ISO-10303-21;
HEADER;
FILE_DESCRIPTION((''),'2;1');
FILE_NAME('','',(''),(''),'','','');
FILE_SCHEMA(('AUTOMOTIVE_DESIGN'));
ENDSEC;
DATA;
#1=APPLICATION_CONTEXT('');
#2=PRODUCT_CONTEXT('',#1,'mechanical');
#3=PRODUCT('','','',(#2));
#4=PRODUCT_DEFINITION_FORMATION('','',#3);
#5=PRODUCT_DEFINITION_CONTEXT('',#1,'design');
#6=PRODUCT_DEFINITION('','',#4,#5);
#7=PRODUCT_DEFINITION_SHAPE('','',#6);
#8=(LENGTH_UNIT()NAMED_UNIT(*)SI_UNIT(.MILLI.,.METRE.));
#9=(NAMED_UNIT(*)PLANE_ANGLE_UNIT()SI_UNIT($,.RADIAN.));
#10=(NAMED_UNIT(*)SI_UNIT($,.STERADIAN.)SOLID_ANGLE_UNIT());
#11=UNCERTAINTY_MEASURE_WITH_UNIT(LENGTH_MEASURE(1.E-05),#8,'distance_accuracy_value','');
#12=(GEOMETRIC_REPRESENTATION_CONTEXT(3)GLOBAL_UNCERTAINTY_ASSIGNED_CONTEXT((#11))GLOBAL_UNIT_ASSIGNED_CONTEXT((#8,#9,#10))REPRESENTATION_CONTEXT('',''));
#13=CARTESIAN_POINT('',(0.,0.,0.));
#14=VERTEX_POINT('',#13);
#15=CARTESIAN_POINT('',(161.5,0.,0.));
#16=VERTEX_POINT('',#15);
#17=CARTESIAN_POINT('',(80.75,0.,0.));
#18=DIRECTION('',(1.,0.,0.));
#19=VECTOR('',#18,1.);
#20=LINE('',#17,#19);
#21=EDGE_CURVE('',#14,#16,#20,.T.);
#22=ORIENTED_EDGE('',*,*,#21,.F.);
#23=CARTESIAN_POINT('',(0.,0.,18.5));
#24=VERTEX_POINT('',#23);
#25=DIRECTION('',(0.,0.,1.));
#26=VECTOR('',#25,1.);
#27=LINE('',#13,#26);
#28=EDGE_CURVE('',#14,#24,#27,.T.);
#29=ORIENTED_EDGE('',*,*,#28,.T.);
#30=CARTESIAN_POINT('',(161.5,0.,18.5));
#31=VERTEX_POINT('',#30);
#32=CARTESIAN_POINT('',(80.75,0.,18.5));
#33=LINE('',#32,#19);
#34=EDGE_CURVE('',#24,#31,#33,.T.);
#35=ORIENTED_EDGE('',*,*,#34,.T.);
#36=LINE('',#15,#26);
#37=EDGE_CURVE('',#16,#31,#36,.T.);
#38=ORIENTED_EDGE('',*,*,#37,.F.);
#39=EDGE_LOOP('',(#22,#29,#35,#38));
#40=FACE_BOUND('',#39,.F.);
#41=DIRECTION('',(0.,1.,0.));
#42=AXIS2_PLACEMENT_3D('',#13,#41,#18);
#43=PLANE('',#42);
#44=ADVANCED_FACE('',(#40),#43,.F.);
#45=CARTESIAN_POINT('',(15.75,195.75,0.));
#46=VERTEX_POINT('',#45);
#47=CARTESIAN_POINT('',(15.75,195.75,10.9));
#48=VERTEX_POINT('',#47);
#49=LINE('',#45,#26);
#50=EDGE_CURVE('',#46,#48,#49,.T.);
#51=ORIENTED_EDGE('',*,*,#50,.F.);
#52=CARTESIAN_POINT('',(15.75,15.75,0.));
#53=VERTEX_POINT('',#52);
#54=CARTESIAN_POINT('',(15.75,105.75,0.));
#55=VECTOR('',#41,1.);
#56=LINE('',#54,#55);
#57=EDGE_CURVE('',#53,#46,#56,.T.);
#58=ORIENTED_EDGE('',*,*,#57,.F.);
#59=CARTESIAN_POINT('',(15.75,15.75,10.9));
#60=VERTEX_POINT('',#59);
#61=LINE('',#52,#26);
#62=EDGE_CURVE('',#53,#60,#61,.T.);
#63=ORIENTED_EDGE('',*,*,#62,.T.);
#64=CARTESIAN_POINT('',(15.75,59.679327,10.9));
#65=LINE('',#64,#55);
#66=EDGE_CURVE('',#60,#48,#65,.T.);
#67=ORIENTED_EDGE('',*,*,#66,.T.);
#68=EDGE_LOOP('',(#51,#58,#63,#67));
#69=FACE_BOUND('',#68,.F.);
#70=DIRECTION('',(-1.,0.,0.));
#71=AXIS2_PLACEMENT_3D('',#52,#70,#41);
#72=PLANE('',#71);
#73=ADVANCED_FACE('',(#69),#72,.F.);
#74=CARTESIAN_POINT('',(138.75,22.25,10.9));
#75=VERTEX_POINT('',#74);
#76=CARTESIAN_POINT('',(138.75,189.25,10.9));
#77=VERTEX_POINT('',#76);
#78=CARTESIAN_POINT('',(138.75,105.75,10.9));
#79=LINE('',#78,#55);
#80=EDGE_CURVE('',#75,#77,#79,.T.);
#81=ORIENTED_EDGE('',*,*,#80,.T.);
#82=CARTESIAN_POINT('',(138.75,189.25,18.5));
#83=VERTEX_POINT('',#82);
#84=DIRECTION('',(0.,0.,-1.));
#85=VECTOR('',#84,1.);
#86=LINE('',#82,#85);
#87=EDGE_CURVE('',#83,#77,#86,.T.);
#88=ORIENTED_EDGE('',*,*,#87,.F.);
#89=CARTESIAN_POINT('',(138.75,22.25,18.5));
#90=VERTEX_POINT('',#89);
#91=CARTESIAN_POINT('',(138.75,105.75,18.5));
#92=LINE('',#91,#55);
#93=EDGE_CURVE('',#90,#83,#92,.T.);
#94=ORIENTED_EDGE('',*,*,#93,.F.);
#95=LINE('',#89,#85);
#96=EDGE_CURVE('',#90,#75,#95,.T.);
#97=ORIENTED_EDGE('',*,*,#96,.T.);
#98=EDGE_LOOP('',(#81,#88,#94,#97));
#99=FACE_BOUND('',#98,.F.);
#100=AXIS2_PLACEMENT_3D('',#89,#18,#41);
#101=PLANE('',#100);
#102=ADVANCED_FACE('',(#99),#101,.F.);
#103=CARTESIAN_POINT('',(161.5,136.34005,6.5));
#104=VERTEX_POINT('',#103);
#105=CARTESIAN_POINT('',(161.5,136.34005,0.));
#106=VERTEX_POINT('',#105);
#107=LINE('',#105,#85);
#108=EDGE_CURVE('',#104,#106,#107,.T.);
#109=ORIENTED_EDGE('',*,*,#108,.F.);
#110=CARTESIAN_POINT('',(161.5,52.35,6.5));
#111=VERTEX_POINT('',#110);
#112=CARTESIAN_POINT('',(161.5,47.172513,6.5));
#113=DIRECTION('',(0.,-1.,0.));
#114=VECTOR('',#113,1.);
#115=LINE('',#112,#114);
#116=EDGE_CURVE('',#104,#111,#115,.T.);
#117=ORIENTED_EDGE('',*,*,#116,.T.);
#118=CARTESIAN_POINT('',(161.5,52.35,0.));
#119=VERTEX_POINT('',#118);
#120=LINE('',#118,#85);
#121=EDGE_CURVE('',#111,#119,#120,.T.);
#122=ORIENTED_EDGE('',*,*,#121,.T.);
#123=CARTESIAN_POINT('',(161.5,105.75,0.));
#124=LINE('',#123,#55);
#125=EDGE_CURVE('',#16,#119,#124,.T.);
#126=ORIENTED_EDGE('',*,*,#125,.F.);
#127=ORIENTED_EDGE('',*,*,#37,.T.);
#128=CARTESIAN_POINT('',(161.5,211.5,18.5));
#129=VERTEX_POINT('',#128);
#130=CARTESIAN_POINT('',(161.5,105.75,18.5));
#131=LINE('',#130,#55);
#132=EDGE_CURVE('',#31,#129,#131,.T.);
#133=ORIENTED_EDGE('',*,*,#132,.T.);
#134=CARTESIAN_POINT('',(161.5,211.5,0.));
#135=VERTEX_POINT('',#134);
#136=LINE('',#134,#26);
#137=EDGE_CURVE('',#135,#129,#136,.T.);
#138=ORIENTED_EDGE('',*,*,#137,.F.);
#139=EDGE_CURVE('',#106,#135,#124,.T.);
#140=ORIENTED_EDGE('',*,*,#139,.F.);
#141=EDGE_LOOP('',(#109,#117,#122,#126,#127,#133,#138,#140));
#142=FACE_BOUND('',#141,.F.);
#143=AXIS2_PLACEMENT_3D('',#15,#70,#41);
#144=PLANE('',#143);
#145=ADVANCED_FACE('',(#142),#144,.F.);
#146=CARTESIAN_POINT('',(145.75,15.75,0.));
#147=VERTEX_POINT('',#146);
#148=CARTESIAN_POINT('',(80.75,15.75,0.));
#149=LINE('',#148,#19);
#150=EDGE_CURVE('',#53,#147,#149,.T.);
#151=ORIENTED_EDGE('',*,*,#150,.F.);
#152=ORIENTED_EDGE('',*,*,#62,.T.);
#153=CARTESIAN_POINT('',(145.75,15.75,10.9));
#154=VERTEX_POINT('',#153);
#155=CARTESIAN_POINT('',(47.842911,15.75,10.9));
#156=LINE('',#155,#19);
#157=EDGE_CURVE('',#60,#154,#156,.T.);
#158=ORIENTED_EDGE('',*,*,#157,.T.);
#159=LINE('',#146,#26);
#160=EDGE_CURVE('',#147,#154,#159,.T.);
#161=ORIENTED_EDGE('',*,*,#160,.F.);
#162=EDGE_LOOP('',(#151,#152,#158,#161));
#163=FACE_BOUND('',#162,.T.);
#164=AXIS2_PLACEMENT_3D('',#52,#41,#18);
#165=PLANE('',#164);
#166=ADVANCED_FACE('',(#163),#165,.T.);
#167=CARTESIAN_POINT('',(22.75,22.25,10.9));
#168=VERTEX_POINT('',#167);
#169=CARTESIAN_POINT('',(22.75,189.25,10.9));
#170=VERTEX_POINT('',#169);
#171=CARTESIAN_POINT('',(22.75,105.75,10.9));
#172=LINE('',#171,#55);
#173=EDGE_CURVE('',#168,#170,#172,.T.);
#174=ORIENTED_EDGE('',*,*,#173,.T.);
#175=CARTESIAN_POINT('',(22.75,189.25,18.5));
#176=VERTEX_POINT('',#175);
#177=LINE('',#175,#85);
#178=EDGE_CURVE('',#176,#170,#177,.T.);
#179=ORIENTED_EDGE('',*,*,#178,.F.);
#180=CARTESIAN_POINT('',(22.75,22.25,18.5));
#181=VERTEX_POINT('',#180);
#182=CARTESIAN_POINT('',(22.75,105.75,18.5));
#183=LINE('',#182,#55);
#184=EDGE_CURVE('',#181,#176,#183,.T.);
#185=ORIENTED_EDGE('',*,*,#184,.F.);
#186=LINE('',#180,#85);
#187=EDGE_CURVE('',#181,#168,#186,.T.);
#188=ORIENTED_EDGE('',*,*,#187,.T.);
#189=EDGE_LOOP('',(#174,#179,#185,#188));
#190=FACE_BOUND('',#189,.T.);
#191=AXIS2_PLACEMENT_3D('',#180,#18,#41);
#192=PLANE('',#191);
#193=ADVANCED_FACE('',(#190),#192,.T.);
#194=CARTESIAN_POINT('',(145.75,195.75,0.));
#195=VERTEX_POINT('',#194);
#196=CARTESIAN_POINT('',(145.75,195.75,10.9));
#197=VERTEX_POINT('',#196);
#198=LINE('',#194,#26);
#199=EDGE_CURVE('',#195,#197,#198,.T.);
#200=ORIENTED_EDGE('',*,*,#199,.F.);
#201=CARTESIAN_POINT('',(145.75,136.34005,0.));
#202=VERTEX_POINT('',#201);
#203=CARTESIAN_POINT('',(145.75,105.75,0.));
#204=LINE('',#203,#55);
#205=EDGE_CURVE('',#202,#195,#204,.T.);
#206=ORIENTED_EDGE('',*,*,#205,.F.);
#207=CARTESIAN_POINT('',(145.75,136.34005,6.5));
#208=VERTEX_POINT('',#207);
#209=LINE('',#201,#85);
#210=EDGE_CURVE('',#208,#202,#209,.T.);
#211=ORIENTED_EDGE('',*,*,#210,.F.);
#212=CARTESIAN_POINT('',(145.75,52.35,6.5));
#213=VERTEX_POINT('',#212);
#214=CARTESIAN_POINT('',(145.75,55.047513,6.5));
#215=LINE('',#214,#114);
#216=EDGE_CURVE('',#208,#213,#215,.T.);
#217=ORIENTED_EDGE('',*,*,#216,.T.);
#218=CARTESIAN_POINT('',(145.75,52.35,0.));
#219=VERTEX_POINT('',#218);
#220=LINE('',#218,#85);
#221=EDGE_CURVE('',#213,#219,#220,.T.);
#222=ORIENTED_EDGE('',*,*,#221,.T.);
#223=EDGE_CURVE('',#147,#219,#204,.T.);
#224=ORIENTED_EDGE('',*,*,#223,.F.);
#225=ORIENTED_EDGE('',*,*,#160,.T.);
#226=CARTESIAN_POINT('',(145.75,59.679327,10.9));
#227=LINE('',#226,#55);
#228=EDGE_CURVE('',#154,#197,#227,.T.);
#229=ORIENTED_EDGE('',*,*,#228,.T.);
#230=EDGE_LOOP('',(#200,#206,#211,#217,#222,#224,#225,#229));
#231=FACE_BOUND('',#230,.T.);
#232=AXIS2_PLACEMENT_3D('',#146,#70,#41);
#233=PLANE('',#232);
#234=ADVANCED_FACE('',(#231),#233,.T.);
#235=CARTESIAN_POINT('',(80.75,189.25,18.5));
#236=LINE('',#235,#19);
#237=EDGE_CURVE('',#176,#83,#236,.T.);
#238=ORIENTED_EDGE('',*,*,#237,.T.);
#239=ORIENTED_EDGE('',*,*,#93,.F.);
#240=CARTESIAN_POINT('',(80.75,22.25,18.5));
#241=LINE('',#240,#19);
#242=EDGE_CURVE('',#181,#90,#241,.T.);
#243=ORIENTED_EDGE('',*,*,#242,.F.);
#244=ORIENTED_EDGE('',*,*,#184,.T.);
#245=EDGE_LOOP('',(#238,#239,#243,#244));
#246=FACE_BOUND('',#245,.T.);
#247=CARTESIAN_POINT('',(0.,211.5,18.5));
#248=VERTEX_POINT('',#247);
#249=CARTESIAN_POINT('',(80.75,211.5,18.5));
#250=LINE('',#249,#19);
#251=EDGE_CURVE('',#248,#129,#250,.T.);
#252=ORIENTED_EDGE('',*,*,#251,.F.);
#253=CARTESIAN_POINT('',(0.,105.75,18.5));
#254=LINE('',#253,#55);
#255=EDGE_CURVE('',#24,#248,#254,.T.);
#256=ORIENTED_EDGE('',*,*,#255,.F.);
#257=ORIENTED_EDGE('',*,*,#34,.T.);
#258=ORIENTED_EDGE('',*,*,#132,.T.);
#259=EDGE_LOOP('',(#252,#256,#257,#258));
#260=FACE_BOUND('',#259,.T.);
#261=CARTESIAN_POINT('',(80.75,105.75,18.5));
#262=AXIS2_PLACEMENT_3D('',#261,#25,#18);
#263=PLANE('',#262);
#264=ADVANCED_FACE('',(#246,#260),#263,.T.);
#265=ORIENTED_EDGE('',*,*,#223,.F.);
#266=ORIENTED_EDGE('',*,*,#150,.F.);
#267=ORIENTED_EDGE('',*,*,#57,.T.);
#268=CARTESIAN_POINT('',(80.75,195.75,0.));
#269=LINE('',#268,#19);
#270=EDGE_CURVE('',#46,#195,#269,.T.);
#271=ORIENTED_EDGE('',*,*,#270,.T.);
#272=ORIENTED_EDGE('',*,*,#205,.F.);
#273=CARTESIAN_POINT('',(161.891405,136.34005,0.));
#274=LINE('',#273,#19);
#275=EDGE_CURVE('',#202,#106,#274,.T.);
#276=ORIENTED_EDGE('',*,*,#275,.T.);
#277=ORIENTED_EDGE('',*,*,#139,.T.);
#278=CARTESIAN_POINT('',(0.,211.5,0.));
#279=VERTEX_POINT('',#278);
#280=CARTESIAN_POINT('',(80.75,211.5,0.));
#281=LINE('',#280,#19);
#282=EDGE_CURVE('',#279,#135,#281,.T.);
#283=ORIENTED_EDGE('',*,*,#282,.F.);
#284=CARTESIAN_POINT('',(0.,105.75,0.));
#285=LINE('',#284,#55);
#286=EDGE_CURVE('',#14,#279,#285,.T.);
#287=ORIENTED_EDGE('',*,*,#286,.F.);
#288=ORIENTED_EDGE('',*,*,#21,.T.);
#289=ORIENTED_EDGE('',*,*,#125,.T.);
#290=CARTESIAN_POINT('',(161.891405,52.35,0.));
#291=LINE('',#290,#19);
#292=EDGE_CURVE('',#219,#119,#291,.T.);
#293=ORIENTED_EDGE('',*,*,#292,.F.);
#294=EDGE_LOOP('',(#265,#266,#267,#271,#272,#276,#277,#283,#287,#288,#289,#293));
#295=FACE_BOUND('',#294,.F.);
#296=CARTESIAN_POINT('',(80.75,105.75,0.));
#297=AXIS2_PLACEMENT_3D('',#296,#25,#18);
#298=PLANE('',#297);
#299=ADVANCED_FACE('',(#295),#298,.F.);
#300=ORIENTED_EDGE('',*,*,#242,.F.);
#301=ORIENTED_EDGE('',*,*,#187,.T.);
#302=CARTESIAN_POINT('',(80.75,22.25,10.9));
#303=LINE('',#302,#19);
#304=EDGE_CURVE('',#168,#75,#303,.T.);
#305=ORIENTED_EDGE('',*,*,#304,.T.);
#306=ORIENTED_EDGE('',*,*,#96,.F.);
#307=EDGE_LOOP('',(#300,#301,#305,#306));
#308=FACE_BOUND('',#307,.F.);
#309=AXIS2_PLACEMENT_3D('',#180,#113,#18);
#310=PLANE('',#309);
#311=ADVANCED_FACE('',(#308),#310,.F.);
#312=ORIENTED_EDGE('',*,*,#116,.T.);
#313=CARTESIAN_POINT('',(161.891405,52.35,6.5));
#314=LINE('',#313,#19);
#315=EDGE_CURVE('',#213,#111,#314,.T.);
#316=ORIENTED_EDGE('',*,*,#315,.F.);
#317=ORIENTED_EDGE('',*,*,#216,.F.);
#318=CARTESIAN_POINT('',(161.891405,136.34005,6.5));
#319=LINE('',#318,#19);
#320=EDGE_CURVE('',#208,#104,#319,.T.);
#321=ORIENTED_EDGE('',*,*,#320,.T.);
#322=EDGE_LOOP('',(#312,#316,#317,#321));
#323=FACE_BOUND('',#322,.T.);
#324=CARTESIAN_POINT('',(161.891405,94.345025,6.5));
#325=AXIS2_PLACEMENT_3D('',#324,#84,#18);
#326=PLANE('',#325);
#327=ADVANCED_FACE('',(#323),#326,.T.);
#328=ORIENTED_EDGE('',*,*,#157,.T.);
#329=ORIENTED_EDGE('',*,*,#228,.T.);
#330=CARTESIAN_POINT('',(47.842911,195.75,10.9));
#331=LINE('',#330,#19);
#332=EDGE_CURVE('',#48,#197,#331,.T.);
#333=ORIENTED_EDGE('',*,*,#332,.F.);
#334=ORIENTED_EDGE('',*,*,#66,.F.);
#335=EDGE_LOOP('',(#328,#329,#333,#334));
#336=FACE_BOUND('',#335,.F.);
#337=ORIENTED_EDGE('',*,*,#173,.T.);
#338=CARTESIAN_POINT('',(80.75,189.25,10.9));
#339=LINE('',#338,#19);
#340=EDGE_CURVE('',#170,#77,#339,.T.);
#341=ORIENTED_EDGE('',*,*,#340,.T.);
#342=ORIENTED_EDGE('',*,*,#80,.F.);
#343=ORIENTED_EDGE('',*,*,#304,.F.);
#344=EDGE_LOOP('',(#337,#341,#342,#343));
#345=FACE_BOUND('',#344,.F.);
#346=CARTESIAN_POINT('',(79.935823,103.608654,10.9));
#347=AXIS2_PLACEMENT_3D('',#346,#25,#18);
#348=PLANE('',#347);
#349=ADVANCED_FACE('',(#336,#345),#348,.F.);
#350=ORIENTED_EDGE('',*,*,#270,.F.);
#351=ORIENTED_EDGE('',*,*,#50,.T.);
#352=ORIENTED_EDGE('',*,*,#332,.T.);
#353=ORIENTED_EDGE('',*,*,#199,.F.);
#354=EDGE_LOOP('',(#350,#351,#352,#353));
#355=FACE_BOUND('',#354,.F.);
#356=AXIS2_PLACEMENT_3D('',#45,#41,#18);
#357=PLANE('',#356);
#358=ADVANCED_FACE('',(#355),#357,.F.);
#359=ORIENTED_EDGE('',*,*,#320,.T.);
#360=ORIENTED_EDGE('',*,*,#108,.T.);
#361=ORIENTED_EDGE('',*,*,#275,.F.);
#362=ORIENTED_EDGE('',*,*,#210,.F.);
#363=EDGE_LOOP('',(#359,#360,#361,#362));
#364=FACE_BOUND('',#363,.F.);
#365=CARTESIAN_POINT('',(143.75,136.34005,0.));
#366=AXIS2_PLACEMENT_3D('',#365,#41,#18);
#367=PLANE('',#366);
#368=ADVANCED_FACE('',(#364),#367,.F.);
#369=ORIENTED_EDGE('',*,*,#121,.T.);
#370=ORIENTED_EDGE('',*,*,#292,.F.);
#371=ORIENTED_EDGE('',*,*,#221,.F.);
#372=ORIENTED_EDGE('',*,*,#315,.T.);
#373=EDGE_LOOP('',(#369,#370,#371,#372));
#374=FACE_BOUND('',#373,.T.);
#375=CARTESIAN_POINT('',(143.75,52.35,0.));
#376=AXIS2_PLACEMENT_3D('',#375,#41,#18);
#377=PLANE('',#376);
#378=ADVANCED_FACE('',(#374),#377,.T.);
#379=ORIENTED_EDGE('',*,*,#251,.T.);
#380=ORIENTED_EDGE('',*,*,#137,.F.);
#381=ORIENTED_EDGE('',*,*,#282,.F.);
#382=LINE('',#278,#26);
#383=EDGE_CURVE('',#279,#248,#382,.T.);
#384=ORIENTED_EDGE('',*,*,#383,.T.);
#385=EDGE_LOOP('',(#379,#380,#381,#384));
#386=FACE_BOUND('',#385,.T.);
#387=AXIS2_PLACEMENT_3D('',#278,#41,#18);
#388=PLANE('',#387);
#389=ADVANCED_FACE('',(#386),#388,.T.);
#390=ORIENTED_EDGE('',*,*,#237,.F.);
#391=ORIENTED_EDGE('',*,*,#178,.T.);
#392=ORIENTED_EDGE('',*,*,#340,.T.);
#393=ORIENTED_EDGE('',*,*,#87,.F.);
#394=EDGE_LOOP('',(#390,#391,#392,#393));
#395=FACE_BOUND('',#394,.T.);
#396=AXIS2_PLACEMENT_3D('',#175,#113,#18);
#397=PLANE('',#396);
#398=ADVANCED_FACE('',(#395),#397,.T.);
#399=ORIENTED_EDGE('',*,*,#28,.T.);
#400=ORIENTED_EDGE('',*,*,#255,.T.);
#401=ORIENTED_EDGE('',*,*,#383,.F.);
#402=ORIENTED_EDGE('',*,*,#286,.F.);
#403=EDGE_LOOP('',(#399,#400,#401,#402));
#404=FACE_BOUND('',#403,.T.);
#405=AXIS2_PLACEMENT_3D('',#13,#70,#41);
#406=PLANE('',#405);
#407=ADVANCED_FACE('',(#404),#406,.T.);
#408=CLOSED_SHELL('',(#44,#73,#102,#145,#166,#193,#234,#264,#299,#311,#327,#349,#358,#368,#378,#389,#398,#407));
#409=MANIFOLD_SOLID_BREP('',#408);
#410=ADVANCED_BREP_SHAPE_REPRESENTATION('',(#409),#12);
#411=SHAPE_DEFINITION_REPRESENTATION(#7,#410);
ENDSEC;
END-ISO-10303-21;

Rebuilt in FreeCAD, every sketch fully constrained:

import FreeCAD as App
import Part
import Sketcher

V = App.Vector
Q = App.Units.Quantity


def add_polygon(sketch, points):
    """Adds a closed chain of lines whose ends are joined by coincident constraints."""
    first, n = sketch.GeometryCount, len(points)
    for a, b in zip(points, points[1:] + points[:1]):
        sketch.addGeometry(Part.LineSegment(App.Vector(*a, 0), App.Vector(*b, 0)), False)
    for i in range(n):
        sketch.addConstraint(Sketcher.Constraint("Coincident", first + i, 2, first + (i + 1) % n, 1))

doc = App.newDocument("Part")
params = doc.addObject("Spreadsheet::Sheet", "Params")
for row, (alias, value) in enumerate([
    ("sketch1_width", "130 mm"),
    ("sketch1_height", "180 mm"),
    ("sketch1_width2", "161.5 mm"),
    ("sketch1_height2", "211.5 mm"),
    ("pad1_length", "18.5 mm"),
    ("sketch2_width", "116 mm"),
    ("sketch2_height", "167 mm"),
    ("pad2_length", "7.6 mm"),
    ("pocket1_length", "6.5 mm"),
], start=1):
    params.set(f"A{row}", alias)
    params.set(f"B{row}", "=" + value)
    params.setAlias(f"B{row}", alias)

body = doc.addObject("PartDesign::Body", "Body")

sketch1 = body.newObject("Sketcher::SketchObject", "Sketch")
sketch1.AttachmentSupport = (doc.getObject("XY_Plane"), [""])
sketch1.MapMode = "FlatFace"
add_polygon(sketch1, [(0, 212), (0, 0), (162, 0), (162, 212)])
add_polygon(sketch1, [(146, 16), (16, 16), (16, 196), (146, 196)])
sketch1.addConstraint([
    Sketcher.Constraint("Vertical", 0),
    Sketcher.Constraint("Horizontal", 1),
    Sketcher.Constraint("Vertical", 2),
    Sketcher.Constraint("Horizontal", 3),
    Sketcher.Constraint("Horizontal", 4),
    Sketcher.Constraint("Vertical", 5),
    Sketcher.Constraint("Horizontal", 6),
    Sketcher.Constraint("Vertical", 7),
    Sketcher.Constraint("Coincident", 0, 2, -1, 1),
    Sketcher.Constraint("DistanceX", 4, 2, 4, 1, Q("130 mm")),
    Sketcher.Constraint("DistanceY", 5, 1, 5, 2, Q("180 mm")),
    Sketcher.Constraint("DistanceX", 1, 1, 1, 2, Q("161.5 mm")),
    Sketcher.Constraint("DistanceY", 0, 2, 0, 1, Q("211.5 mm")),
    Sketcher.Constraint("DistanceX", -1, 1, 4, 2, Q("15.75 mm")),
    Sketcher.Constraint("DistanceY", -1, 1, 4, 2, Q("15.75 mm")),
])
sketch1.setExpression("Constraints[17]", "Params.sketch1_width")
sketch1.setExpression("Constraints[18]", "Params.sketch1_height")
sketch1.setExpression("Constraints[19]", "Params.sketch1_width2")
sketch1.setExpression("Constraints[20]", "Params.sketch1_height2")
pad1 = body.newObject("PartDesign::Pad", "Pad")
pad1.Profile = sketch1
pad1.setExpression("Length", "Params.pad1_length")

sketch2 = body.newObject("Sketcher::SketchObject", "Sketch001")
sketch2.AttachmentSupport = (doc.getObject("XY_Plane"), [""])
sketch2.MapMode = "FlatFace"
sketch2.AttachmentOffset = App.Placement(V(0, 0, 18.5), App.Rotation())
add_polygon(sketch2, [(8, 200), (8, 8), (151, 8), (151, 200)])
add_polygon(sketch2, [(139, 22), (23, 22), (23, 189), (139, 189)])
sketch2.addConstraint([
    Sketcher.Constraint("Vertical", 0),
    Sketcher.Constraint("Horizontal", 1),
    Sketcher.Constraint("Vertical", 2),
    Sketcher.Constraint("Horizontal", 3),
    Sketcher.Constraint("Horizontal", 4),
    Sketcher.Constraint("Vertical", 5),
    Sketcher.Constraint("Horizontal", 6),
    Sketcher.Constraint("Vertical", 7),
    Sketcher.Constraint("DistanceX", 4, 2, 4, 1, Q("116 mm")),
    Sketcher.Constraint("DistanceY", 5, 1, 5, 2, Q("167 mm")),
    Sketcher.Constraint("DistanceX", -1, 1, 4, 2, Q("22.75 mm")),
    Sketcher.Constraint("DistanceY", -1, 1, 4, 2, Q("22.25 mm")),
    Sketcher.Constraint("DistanceX", 1, 1, 1, 2, Q("142.953762 mm")),
    Sketcher.Constraint("DistanceY", 0, 2, 0, 1, Q("192.038153 mm")),
    Sketcher.Constraint("DistanceY", -1, 1, 2, 2, Q("199.627731 mm")),
    Sketcher.Constraint("DistanceX", 3, 2, 6, 2, Q("130.291058 mm")),
])
sketch2.setExpression("Constraints[16]", "Params.sketch2_width")
sketch2.setExpression("Constraints[17]", "Params.sketch2_height")
pad2 = body.newObject("PartDesign::Pad", "Pad001")
pad2.Profile = sketch2
pad2.setExpression("Length", "Params.pad2_length")
pad2.Reversed = True

sketch3 = body.newObject("Sketcher::SketchObject", "Sketch002")
sketch3.AttachmentSupport = (doc.getObject("XY_Plane"), [""])
sketch3.MapMode = "FlatFace"
add_polygon(sketch3, [(144, 52), (144, 136), (180, 136), (180, 52)])
sketch3.addConstraint([
    Sketcher.Constraint("Vertical", 0),
    Sketcher.Constraint("Horizontal", 1),
    Sketcher.Constraint("Vertical", 2),
    Sketcher.Constraint("Horizontal", 3),
    Sketcher.Constraint("DistanceX", -1, 1, 0, 2, Q("143.75 mm")),
    Sketcher.Constraint("DistanceY", -1, 1, 2, 2, Q("52.35 mm")),
    Sketcher.Constraint("DistanceX", 1, 1, 1, 2, Q("36.28281 mm")),
    Sketcher.Constraint("DistanceY", 0, 1, 0, 2, Q("83.99005 mm")),
])
pocket1 = body.newObject("PartDesign::Pocket", "Pocket")
pocket1.Profile = sketch3
pocket1.setExpression("Length", "Params.pocket1_length")
pocket1.Reversed = True

doc.recompute()
